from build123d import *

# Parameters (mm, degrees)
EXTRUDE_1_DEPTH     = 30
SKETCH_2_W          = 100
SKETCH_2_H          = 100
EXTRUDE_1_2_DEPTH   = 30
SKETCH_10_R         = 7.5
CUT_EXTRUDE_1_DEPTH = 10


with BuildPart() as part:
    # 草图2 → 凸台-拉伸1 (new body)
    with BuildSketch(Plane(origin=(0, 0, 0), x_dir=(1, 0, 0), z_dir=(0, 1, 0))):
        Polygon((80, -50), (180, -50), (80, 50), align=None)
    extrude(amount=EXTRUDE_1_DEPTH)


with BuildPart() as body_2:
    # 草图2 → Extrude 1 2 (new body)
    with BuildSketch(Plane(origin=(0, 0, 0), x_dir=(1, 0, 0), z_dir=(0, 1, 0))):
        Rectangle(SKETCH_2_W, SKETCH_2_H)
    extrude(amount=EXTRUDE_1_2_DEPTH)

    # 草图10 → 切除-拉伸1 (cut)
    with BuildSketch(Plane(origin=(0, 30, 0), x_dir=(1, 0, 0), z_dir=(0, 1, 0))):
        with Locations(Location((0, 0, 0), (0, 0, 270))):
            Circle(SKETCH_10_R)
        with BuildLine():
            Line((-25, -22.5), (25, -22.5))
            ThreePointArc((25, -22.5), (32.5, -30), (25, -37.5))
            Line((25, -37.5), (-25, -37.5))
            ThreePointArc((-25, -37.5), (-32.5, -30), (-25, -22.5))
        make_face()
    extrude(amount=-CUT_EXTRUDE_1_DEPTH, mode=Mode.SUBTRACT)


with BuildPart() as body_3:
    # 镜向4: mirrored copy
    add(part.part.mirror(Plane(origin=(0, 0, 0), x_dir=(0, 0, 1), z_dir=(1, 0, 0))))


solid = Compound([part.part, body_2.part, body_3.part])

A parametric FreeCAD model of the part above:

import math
import FreeCAD as App
import Part
import Sketcher
from FreeCAD import Vector
Q = App.Units.Quantity


def add_polygon(sketch, points):
    """Adds a closed chain of lines whose ends are joined by coincident constraints."""
    first, n = sketch.GeometryCount, len(points)
    for a, b in zip(points, points[1:] + points[:1]):
        sketch.addGeometry(Part.LineSegment(App.Vector(*a, 0), App.Vector(*b, 0)), False)
    for i in range(n):
        sketch.addConstraint(Sketcher.Constraint("Coincident", first + i, 2, first + (i + 1) % n, 1))

doc = App.newDocument("Part")
params = doc.addObject("Spreadsheet::Sheet", "Params")
for row, (alias, value) in enumerate([
    ("sketch1_width", "100 mm"),
    ("pad1_length", "30 mm"),
    ("sketch2_width", "100 mm"),
    ("pad2_length", "30 mm"),
    ("sketch3_diameter", "15 mm"),
    ("sketch3_width", "50 mm"),
    ("pocket1_length", "10 mm"),
], start=1):
    params.set(f"A{row}", alias)
    params.set(f"B{row}", "=" + value)
    params.setAlias(f"B{row}", alias)

body = doc.addObject("PartDesign::Body", "Body")

sketch1 = doc.addObject("Sketcher::SketchObject", "Sketch")
body.addObject(sketch1)
sketch1.AttachmentSupport = (doc.XZ_Plane, [""])
sketch1.MapMode = "FlatFace"
add_polygon(sketch1, [(80, 50), (180, 50), (80, -50)])
sketch1.addConstraint(Sketcher.Constraint("Horizontal", 0))
sketch1.addConstraint(Sketcher.Constraint("Vertical", 2))
sketch1.addConstraint(Sketcher.Constraint("Equal", 0, 2))
sketch1.addConstraint(Sketcher.Constraint("DistanceX", 0, 1, 0, 2, Q("100 mm")))
sketch1.addConstraint(Sketcher.Constraint("DistanceX", -1, 1, 0, 2, Q("180 mm")))
sketch1.addConstraint(Sketcher.Constraint("DistanceY", -1, 1, 0, 2, Q("50 mm")))
sketch1.setExpression("Constraints[6]", "Params.sketch1_width")
pad1 = doc.addObject("PartDesign::Pad", "Pad")
body.addObject(pad1)
pad1.Profile = sketch1
pad1.setExpression("Length", "Params.pad1_length")
pad1.Reversed = True
body2 = doc.addObject("PartDesign::Body", "Body001")

sketch2 = doc.addObject("Sketcher::SketchObject", "Sketch001")
body2.addObject(sketch2)
sketch2.AttachmentSupport = (doc.getObject("XZ_Plane001"), [""])
sketch2.MapMode = "FlatFace"
add_polygon(sketch2, [(-50, -50), (-50, 50), (50, 50), (50, -50)])
sketch2.addConstraint(Sketcher.Constraint("Vertical", 0))
sketch2.addConstraint(Sketcher.Constraint("Horizontal", 1))
sketch2.addConstraint(Sketcher.Constraint("Vertical", 2))
sketch2.addConstraint(Sketcher.Constraint("Horizontal", 3))
sketch2.addConstraint(Sketcher.Constraint("Symmetric", 0, 2, 2, 2, -1, 1))
sketch2.addConstraint(Sketcher.Constraint("Equal", 3, 0))
sketch2.addConstraint(Sketcher.Constraint("DistanceX", 1, 1, 1, 2, Q("100 mm")))
sketch2.setExpression("Constraints[10]", "Params.sketch2_width")
pad2 = doc.addObject("PartDesign::Pad", "Pad001")
body2.addObject(pad2)
pad2.Profile = sketch2
pad2.setExpression("Length", "Params.pad2_length")
pad2.Reversed = True

sketch3 = doc.addObject("Sketcher::SketchObject", "Sketch002")
body2.addObject(sketch3)
sketch3.AttachmentSupport = (doc.getObject("XZ_Plane001"), [""])
sketch3.MapMode = "FlatFace"
sketch3.AttachmentOffset = App.Placement(Vector(0, 0, -30), App.Rotation())
sketch3.addGeometry(Part.Circle(Vector(0, 0, 0), Vector(0, 0, 1), 8), False)
sketch3.addGeometry(Part.LineSegment(Vector(25, 22, 0), Vector(-25, 22, 0)), False)
sketch3.addGeometry(Part.ArcOfCircle(Part.Circle(Vector(-25, 30, 0), Vector(0, 0, 1), 8), math.radians(90), math.radians(270)), False)
sketch3.addGeometry(Part.LineSegment(Vector(-25, 38, 0), Vector(25, 38, 0)), False)
sketch3.addGeometry(Part.ArcOfCircle(Part.Circle(Vector(25, 30, 0), Vector(0, 0, 1), 8), math.radians(-90), math.radians(90)), False)
sketch3.addConstraint(Sketcher.Constraint("Tangent", 1, 2, 2, 2))
sketch3.addConstraint(Sketcher.Constraint("Tangent", 2, 1, 3, 1))
sketch3.addConstraint(Sketcher.Constraint("Tangent", 3, 2, 4, 2))
sketch3.addConstraint(Sketcher.Constraint("Tangent", 4, 1, 1, 1))
sketch3.addConstraint(Sketcher.Constraint("Horizontal", 1))
sketch3.addConstraint(Sketcher.Constraint("Horizontal", 3))
sketch3.addConstraint(Sketcher.Constraint("Coincident", 0, 3, -1, 1))
sketch3.addConstraint(Sketcher.Constraint("Equal", 0, 2))
sketch3.addConstraint(Sketcher.Constraint("Diameter", 0, Q("15 mm")))
sketch3.addConstraint(Sketcher.Constraint("DistanceX", 1, 2, 1, 1, Q("50 mm")))
sketch3.addConstraint(Sketcher.Constraint("DistanceX", 2, 3, -1, 1, Q("25 mm")))
sketch3.addConstraint(Sketcher.Constraint("DistanceY", -1, 1, 2, 3, Q("30 mm")))
sketch3.setExpression("Constraints[8]", "Params.sketch3_diameter")
sketch3.setExpression("Constraints[9]", "Params.sketch3_width")
pocket1 = doc.addObject("PartDesign::Pocket", "Pocket")
body2.addObject(pocket1)
pocket1.Profile = sketch3
pocket1.setExpression("Length", "Params.pocket1_length")
pocket1.Reversed = True
body3 = doc.addObject("PartDesign::Body", "Body002")
doc.recompute()

mirroring = doc.addObject("Part::Mirroring", "Mirroring")
mirroring.Source = body
mirroring.Base = Vector(0, 0, 0)
mirroring.Normal = Vector(1, 0, 0)
body3.BaseFeature = mirroring
doc.recompute()
mirroring.Visibility = False

doc.recompute()
